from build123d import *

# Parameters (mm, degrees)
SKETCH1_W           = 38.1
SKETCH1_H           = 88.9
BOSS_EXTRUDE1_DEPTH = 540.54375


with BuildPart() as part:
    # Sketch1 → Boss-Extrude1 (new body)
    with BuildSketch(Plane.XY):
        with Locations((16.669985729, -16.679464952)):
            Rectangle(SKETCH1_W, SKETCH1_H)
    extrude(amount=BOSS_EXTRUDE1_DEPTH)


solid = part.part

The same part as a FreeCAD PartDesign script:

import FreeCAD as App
import Part
import Sketcher
Q = App.Units.Quantity

doc = App.newDocument("Part")
params = doc.addObject("Spreadsheet::Sheet", "Params")
for row, (alias, value) in enumerate([
    ("sketch1_width", "1.5 in"),
    ("sketch1_height", "3.5 in"),
    ("pad1_length", "21.28125 in"),
], start=1):
    params.set(f"A{row}", alias)
    params.set(f"B{row}", "=" + value)
    params.setAlias(f"B{row}", alias)

body = doc.addObject("PartDesign::Body", "Body")

# Sketch on XY plane
sketch1 = body.newObject("Sketcher::SketchObject", "Sketch")
sketch1.AttachmentSupport = (doc.getObject("XY_Plane"), [""])
sketch1.MapMode = "FlatFace"
sketch1.addGeometry([
    Part.LineSegment(App.Vector(-2, 28, 0), App.Vector(-2, -61, 0)),
    Part.LineSegment(App.Vector(-2, -61, 0), App.Vector(36, -61, 0)),
    Part.LineSegment(App.Vector(36, -61, 0), App.Vector(36, 28, 0)),
    Part.LineSegment(App.Vector(36, 28, 0), App.Vector(-2, 28, 0)),
], False)
sketch1.addConstraint([
    Sketcher.Constraint("Coincident", 0, 2, 1, 1),
    Sketcher.Constraint("Coincident", 1, 2, 2, 1),
    Sketcher.Constraint("Coincident", 2, 2, 3, 1),
    Sketcher.Constraint("Coincident", 3, 2, 0, 1),
    Sketcher.Constraint("Vertical", 0),
    Sketcher.Constraint("Horizontal", 1),
    Sketcher.Constraint("Vertical", 2),
    Sketcher.Constraint("Horizontal", 3),
    Sketcher.Constraint("DistanceX", 1, 1, 1, 2, Q("1.5 in")),
    Sketcher.Constraint("DistanceY", 0, 2, 0, 1, Q("3.5 in")),
    Sketcher.Constraint("DistanceX", 0, 2, -1, 1, 2.380014),
    Sketcher.Constraint("DistanceY", 0, 2, -1, 1, 61.129465),
])
sketch1.setExpression("Constraints[8]", "Params.sketch1_width")
sketch1.setExpression("Constraints[9]", "Params.sketch1_height")
pad1 = body.newObject("PartDesign::Pad", "Pad")
pad1.Profile = sketch1
pad1.setExpression("Length", "Params.pad1_length")

doc.recompute()
